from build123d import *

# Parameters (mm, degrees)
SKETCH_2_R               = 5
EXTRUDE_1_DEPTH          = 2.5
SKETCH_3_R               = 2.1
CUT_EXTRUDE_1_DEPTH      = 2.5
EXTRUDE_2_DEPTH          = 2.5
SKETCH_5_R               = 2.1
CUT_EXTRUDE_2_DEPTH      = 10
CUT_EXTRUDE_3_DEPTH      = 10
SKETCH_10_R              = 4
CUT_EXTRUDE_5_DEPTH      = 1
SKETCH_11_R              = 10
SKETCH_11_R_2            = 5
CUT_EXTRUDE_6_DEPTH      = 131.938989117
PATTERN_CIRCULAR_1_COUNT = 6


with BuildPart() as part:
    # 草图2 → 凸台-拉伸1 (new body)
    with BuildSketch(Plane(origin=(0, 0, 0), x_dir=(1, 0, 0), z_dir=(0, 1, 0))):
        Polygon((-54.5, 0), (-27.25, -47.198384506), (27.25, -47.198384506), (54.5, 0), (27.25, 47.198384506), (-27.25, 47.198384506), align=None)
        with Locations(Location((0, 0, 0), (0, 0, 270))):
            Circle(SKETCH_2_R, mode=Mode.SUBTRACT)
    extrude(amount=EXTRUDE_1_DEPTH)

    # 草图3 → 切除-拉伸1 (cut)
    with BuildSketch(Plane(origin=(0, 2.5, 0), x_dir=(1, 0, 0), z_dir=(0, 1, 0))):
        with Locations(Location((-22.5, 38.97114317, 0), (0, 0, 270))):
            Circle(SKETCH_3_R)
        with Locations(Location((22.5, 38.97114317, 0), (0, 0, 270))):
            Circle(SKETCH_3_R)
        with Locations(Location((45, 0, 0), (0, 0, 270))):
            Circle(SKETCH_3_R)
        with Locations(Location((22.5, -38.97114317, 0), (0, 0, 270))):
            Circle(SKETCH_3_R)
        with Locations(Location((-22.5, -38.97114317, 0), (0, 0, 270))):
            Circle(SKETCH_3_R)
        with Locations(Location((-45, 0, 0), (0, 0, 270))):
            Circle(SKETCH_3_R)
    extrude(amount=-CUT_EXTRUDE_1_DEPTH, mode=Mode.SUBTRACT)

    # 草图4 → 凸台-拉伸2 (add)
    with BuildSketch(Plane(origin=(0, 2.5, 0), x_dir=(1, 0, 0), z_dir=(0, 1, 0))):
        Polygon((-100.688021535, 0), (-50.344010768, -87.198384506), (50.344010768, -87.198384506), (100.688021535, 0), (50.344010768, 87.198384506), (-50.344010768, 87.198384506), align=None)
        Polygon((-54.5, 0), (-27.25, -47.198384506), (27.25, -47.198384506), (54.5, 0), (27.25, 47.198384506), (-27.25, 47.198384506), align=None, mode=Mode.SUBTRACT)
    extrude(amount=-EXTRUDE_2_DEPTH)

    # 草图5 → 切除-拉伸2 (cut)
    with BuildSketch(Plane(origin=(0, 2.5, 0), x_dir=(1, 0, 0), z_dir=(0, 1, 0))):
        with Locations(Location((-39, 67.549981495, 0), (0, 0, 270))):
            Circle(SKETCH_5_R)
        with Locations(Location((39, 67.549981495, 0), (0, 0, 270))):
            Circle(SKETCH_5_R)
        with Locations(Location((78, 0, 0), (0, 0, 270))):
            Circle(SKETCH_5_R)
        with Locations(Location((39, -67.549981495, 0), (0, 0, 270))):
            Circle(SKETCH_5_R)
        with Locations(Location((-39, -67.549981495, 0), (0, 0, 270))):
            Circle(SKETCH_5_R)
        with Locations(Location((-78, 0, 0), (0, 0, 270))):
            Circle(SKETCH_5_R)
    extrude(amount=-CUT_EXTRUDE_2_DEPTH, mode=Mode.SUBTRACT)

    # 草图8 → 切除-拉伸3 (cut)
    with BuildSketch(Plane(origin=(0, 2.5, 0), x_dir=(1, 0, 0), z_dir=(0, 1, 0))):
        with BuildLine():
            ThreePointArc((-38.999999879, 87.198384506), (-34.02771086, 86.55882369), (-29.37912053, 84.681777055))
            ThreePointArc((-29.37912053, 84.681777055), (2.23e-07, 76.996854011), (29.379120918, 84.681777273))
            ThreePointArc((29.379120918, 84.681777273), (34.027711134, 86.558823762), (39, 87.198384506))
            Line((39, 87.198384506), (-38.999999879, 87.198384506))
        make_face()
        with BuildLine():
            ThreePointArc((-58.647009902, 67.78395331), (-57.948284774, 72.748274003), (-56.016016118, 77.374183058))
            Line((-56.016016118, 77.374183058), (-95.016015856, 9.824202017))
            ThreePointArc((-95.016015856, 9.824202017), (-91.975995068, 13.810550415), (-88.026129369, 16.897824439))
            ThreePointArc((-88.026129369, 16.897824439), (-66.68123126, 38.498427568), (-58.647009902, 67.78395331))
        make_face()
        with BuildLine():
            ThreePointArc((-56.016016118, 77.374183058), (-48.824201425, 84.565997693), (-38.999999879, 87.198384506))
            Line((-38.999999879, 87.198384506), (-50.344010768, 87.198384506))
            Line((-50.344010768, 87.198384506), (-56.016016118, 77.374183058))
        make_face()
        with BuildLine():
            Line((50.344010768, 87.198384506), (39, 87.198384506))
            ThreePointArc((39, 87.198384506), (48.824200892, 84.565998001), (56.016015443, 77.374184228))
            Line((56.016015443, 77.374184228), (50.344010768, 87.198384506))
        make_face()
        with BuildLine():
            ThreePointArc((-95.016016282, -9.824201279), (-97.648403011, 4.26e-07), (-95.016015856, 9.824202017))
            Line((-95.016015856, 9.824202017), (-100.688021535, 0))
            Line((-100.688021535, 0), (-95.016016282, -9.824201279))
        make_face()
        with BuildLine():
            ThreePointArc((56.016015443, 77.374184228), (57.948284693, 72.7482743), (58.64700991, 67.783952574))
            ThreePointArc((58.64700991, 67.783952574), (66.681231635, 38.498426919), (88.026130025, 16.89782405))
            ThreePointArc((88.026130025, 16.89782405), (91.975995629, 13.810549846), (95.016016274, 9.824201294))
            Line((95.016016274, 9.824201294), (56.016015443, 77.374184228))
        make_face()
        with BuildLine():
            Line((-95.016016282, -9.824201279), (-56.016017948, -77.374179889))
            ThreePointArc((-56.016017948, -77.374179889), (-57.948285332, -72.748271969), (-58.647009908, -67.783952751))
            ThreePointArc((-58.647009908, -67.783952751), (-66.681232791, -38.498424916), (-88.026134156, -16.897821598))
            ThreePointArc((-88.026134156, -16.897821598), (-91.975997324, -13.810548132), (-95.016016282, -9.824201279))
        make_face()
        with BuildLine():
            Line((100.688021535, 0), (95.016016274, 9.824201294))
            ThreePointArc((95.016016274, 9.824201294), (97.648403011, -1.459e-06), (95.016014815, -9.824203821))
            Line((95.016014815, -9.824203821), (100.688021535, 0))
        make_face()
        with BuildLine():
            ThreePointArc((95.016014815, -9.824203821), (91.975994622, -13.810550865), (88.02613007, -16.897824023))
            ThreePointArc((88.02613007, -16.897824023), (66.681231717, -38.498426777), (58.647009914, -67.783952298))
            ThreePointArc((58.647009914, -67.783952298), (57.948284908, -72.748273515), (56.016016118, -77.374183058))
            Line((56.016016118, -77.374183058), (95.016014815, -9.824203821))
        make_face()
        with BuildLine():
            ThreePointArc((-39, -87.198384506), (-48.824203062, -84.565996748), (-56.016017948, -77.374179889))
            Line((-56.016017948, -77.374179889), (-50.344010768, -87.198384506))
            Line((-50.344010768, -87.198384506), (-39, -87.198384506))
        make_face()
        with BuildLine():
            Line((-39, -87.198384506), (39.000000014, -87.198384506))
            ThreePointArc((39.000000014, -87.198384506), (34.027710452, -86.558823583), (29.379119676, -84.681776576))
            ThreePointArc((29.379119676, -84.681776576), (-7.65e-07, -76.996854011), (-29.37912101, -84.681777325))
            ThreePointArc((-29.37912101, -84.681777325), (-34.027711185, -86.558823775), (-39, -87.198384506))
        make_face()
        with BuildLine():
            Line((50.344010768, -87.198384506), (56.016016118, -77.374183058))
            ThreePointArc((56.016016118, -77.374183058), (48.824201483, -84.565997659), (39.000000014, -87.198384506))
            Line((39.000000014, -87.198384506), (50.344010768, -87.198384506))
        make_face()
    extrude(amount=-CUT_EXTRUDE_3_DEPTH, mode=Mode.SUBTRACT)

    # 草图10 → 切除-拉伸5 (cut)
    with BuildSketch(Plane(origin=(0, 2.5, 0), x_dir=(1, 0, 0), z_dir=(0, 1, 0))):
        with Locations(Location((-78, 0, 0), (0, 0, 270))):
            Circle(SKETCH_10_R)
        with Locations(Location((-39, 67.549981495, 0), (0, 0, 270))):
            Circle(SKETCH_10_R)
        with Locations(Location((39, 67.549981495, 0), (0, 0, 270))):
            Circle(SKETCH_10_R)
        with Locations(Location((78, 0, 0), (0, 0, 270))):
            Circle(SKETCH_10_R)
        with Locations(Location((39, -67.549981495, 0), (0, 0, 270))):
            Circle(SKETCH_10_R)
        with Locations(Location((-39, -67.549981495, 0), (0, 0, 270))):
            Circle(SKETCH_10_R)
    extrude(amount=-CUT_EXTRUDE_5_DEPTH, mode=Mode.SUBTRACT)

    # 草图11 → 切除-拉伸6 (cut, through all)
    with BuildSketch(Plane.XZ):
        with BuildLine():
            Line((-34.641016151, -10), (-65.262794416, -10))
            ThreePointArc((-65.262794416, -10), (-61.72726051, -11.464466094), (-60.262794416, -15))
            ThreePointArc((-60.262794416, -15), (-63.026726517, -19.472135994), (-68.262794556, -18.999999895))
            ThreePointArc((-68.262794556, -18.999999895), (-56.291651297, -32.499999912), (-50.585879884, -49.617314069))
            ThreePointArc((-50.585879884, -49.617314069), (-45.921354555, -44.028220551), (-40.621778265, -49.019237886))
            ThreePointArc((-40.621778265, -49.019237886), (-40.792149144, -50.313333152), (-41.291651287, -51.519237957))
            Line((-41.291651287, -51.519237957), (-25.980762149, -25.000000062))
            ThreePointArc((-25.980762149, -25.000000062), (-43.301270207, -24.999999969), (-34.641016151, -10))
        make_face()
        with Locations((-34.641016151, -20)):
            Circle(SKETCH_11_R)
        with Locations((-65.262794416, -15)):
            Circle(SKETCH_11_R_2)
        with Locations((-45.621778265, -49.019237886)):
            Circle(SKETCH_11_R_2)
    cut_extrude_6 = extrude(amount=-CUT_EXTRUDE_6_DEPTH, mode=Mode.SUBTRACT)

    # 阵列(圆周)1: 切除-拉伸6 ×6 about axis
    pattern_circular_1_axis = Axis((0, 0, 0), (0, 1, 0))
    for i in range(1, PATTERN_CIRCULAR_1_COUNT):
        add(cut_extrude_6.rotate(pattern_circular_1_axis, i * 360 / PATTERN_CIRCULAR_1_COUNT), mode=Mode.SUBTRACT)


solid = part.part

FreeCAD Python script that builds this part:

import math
import FreeCAD as App
import Part
import Sketcher
from FreeCAD import Vector
Q = App.Units.Quantity

doc = App.newDocument("Part")
body = doc.addObject("PartDesign::Body", "Body")

# Sketch on XZ plane
sketch1 = doc.addObject("Sketcher::SketchObject", "Sketch")
body.addObject(sketch1)
sketch1.AttachmentSupport = (doc.XZ_Plane, [""])
sketch1.MapMode = "FlatFace"
sketch1.addGeometry(Part.LineSegment(Vector(-54, 0, 0), Vector(-27, 47, 0)), False)
sketch1.addGeometry(Part.LineSegment(Vector(-27, 47, 0), Vector(27, 47, 0)), False)
sketch1.addGeometry(Part.LineSegment(Vector(27, 47, 0), Vector(54, 0, 0)), False)
sketch1.addGeometry(Part.LineSegment(Vector(54, 0, 0), Vector(27, -47, 0)), False)
sketch1.addGeometry(Part.LineSegment(Vector(27, -47, 0), Vector(-27, -47, 0)), False)
sketch1.addGeometry(Part.LineSegment(Vector(-27, -47, 0), Vector(-54, 0, 0)), False)
sketch1.addGeometry(Part.Circle(Vector(0, 0, 0), Vector(0, 0, 1), 5), False)
sketch1.addConstraint(Sketcher.Constraint("Coincident", 0, 2, 1, 1))
sketch1.addConstraint(Sketcher.Constraint("Coincident", 1, 2, 2, 1))
sketch1.addConstraint(Sketcher.Constraint("Coincident", 2, 2, 3, 1))
sketch1.addConstraint(Sketcher.Constraint("Coincident", 3, 2, 4, 1))
sketch1.addConstraint(Sketcher.Constraint("Coincident", 4, 2, 5, 1))
sketch1.addConstraint(Sketcher.Constraint("Coincident", 5, 2, 0, 1))
sketch1.addConstraint(Sketcher.Constraint("Horizontal", 1))
sketch1.addConstraint(Sketcher.Constraint("Horizontal", 4))
sketch1.addConstraint(Sketcher.Constraint("Coincident", 6, 3, -1, 1))
sketch1.addConstraint(Sketcher.Constraint("Symmetric", 0, 2, 3, 2, -1, 1))
sketch1.addConstraint(Sketcher.Constraint("Symmetric", 2, 2, 5, 2, -1, 1))
sketch1.addConstraint(Sketcher.Constraint("PointOnObject", 2, 2, -1))
sketch1.addConstraint(Sketcher.Constraint("Parallel", 2, 5))
sketch1.addConstraint(Sketcher.Constraint("Vertical", 1, 2, 3, 2))
sketch1.addConstraint(Sketcher.Constraint("Diameter", 6, 10.0))
sketch1.addConstraint(Sketcher.Constraint("Angle", 0, Q("60 deg")))
sketch1.addConstraint(Sketcher.Constraint("DistanceX", 1, 1, 1, 2, 54.5))
sketch1.addConstraint(Sketcher.Constraint("Distance", 0, 54.5))
pad1 = doc.addObject("PartDesign::Pad", "Pad")
body.addObject(pad1)
pad1.Profile = sketch1
pad1.Length = 2.5
pad1.Reversed = True

# Sketch on XZ plane
sketch2 = doc.addObject("Sketcher::SketchObject", "Sketch001")
body.addObject(sketch2)
sketch2.AttachmentSupport = (doc.XZ_Plane, [""])
sketch2.MapMode = "FlatFace"
sketch2.AttachmentOffset = App.Placement(Vector(0, 0, -2.5), App.Rotation())
sketch2.addGeometry(Part.Circle(Vector(-22.5, -39, 0), Vector(0, 0, 1), 2.1), False)
sketch2.addGeometry(Part.Circle(Vector(22.5, -39, 0), Vector(0, 0, 1), 2.1), False)
sketch2.addGeometry(Part.Circle(Vector(45, 0, 0), Vector(0, 0, 1), 2.1), False)
sketch2.addGeometry(Part.Circle(Vector(22.5, 39, 0), Vector(0, 0, 1), 2.1), False)
sketch2.addGeometry(Part.Circle(Vector(-22.5, 39, 0), Vector(0, 0, 1), 2.1), False)
sketch2.addGeometry(Part.Circle(Vector(-45, 0, 0), Vector(0, 0, 1), 2.1), False)
sketch2.addConstraint(Sketcher.Constraint("Equal", 0, 1))
sketch2.addConstraint(Sketcher.Constraint("Equal", 1, 2))
sketch2.addConstraint(Sketcher.Constraint("Equal", 2, 3))
sketch2.addConstraint(Sketcher.Constraint("Equal", 3, 4))
sketch2.addConstraint(Sketcher.Constraint("Equal", 4, 5))
sketch2.addConstraint(Sketcher.Constraint("Symmetric", 0, 3, 3, 3, -1, 1))
sketch2.addConstraint(Sketcher.Constraint("Symmetric", 1, 3, 4, 3, -1, 1))
sketch2.addConstraint(Sketcher.Constraint("Symmetric", 2, 3, 5, 3, -1, 1))
sketch2.addConstraint(Sketcher.Constraint("Symmetric", 0, 3, 1, 3, -2))
sketch2.addConstraint(Sketcher.Constraint("PointOnObject", 2, 3, -1))
sketch2.addConstraint(Sketcher.Constraint("Diameter", 0, 4.2))
sketch2.addConstraint(Sketcher.Constraint("DistanceX", -1, 1, 2, 3, 45.0))
sketch2.addConstraint(Sketcher.Constraint("DistanceX", 0, 3, 1, 3, 45.0))
sketch2.addConstraint(Sketcher.Constraint("DistanceY", 0, 3, -1, 1, 38.971143))
pocket1 = doc.addObject("PartDesign::Pocket", "Pocket")
body.addObject(pocket1)
pocket1.Profile = sketch2
pocket1.Length = 2.5
pocket1.Reversed = True

# Sketch on XZ plane
sketch3 = doc.addObject("Sketcher::SketchObject", "Sketch002")
body.addObject(sketch3)
sketch3.AttachmentSupport = (doc.XZ_Plane, [""])
sketch3.MapMode = "FlatFace"
sketch3.AttachmentOffset = App.Placement(Vector(0, 0, -2.5), App.Rotation())
sketch3.addGeometry(Part.LineSegment(Vector(-101, 0, 0), Vector(-50, 87, 0)), False)
sketch3.addGeometry(Part.LineSegment(Vector(-50, 87, 0), Vector(50, 87, 0)), False)
sketch3.addGeometry(Part.LineSegment(Vector(50, 87, 0), Vector(101, 0, 0)), False)
sketch3.addGeometry(Part.LineSegment(Vector(101, 0, 0), Vector(50, -87, 0)), False)
sketch3.addGeometry(Part.LineSegment(Vector(50, -87, 0), Vector(-50, -87, 0)), False)
sketch3.addGeometry(Part.LineSegment(Vector(-50, -87, 0), Vector(-101, 0, 0)), False)
sketch3.addGeometry(Part.LineSegment(Vector(-27, 47, 0), Vector(-54, 0, 0)), False)
sketch3.addGeometry(Part.LineSegment(Vector(-54, 0, 0), Vector(-27, -47, 0)), False)
sketch3.addGeometry(Part.LineSegment(Vector(-27, -47, 0), Vector(27, -47, 0)), False)
sketch3.addGeometry(Part.LineSegment(Vector(27, -47, 0), Vector(54, 0, 0)), False)
sketch3.addGeometry(Part.LineSegment(Vector(54, 0, 0), Vector(27, 47, 0)), False)
sketch3.addGeometry(Part.LineSegment(Vector(27, 47, 0), Vector(-27, 47, 0)), False)
sketch3.addConstraint(Sketcher.Constraint("Coincident", 0, 2, 1, 1))
sketch3.addConstraint(Sketcher.Constraint("Coincident", 1, 2, 2, 1))
sketch3.addConstraint(Sketcher.Constraint("Coincident", 2, 2, 3, 1))
sketch3.addConstraint(Sketcher.Constraint("Coincident", 3, 2, 4, 1))
sketch3.addConstraint(Sketcher.Constraint("Coincident", 4, 2, 5, 1))
sketch3.addConstraint(Sketcher.Constraint("Coincident", 5, 2, 0, 1))
sketch3.addConstraint(Sketcher.Constraint("Coincident", 6, 2, 7, 1))
sketch3.addConstraint(Sketcher.Constraint("Coincident", 7, 2, 8, 1))
sketch3.addConstraint(Sketcher.Constraint("Coincident", 8, 2, 9, 1))
sketch3.addConstraint(Sketcher.Constraint("Coincident", 9, 2, 10, 1))
sketch3.addConstraint(Sketcher.Constraint("Coincident", 10, 2, 11, 1))
sketch3.addConstraint(Sketcher.Constraint("Coincident", 11, 2, 6, 1))
sketch3.addConstraint(Sketcher.Constraint("Horizontal", 1))
sketch3.addConstraint(Sketcher.Constraint("Horizontal", 4))
sketch3.addConstraint(Sketcher.Constraint("Horizontal", 8))
sketch3.addConstraint(Sketcher.Constraint("Horizontal", 11))
sketch3.addConstraint(Sketcher.Constraint("Symmetric", 0, 2, 3, 2, -1, 1))
sketch3.addConstraint(Sketcher.Constraint("Symmetric", 2, 2, 5, 2, -1, 1))
sketch3.addConstraint(Sketcher.Constraint("Symmetric", 6, 2, 9, 2, -1, 1))
sketch3.addConstraint(Sketcher.Constraint("Symmetric", 7, 2, 10, 2, -1, 1))
sketch3.addConstraint(Sketcher.Constraint("PointOnObject", 2, 2, -1))
sketch3.addConstraint(Sketcher.Constraint("PointOnObject", 6, 2, -1))
sketch3.addConstraint(Sketcher.Constraint("Parallel", 2, 5))
sketch3.addConstraint(Sketcher.Constraint("Parallel", 3, 6))
sketch3.addConstraint(Sketcher.Constraint("Parallel", 5, 7))
sketch3.addConstraint(Sketcher.Constraint("Parallel", 6, 9))
sketch3.addConstraint(Sketcher.Constraint("Vertical", 1, 2, 3, 2))
sketch3.addConstraint(Sketcher.Constraint("Angle", 0, Q("60 deg")))
sketch3.addConstraint(Sketcher.Constraint("DistanceX", 8, 1, 8, 2, 54.5))
sketch3.addConstraint(Sketcher.Constraint("DistanceY", 4, 2, 7, 2, 40.0))
sketch3.addConstraint(Sketcher.Constraint("Distance", 6, 54.5))
sketch3.addConstraint(Sketcher.Constraint("DistanceX", 1, 1, 1, 2, 100.688022))
pad2 = doc.addObject("PartDesign::Pad", "Pad001")
body.addObject(pad2)
pad2.Profile = sketch3
pad2.Length = 2.5

# Sketch on XZ plane
sketch4 = doc.addObject("Sketcher::SketchObject", "Sketch003")
body.addObject(sketch4)
sketch4.AttachmentSupport = (doc.XZ_Plane, [""])
sketch4.MapMode = "FlatFace"
sketch4.AttachmentOffset = App.Placement(Vector(0, 0, -2.5), App.Rotation())
sketch4.addGeometry(Part.Circle(Vector(-39, -67.5, 0), Vector(0, 0, 1), 2.1), False)
sketch4.addGeometry(Part.Circle(Vector(39, -67.5, 0), Vector(0, 0, 1), 2.1), False)
sketch4.addGeometry(Part.Circle(Vector(78, 0, 0), Vector(0, 0, 1), 2.1), False)
sketch4.addGeometry(Part.Circle(Vector(39, 67.5, 0), Vector(0, 0, 1), 2.1), False)
sketch4.addGeometry(Part.Circle(Vector(-39, 67.5, 0), Vector(0, 0, 1), 2.1), False)
sketch4.addGeometry(Part.Circle(Vector(-78, 0, 0), Vector(0, 0, 1), 2.1), False)
sketch4.addConstraint(Sketcher.Constraint("Equal", 0, 1))
sketch4.addConstraint(Sketcher.Constraint("Equal", 1, 2))
sketch4.addConstraint(Sketcher.Constraint("Equal", 2, 3))
sketch4.addConstraint(Sketcher.Constraint("Equal", 3, 4))
sketch4.addConstraint(Sketcher.Constraint("Equal", 4, 5))
sketch4.addConstraint(Sketcher.Constraint("Symmetric", 0, 3, 3, 3, -1, 1))
sketch4.addConstraint(Sketcher.Constraint("Symmetric", 1, 3, 4, 3, -1, 1))
sketch4.addConstraint(Sketcher.Constraint("Symmetric", 2, 3, 5, 3, -1, 1))
sketch4.addConstraint(Sketcher.Constraint("Symmetric", 0, 3, 1, 3, -2))
sketch4.addConstraint(Sketcher.Constraint("PointOnObject", 2, 3, -1))
sketch4.addConstraint(Sketcher.Constraint("Diameter", 0, 4.2))
sketch4.addConstraint(Sketcher.Constraint("DistanceX", 0, 3, -1, 1, 39.0))
sketch4.addConstraint(Sketcher.Constraint("DistanceX", -1, 1, 2, 3, 78.0))
sketch4.addConstraint(Sketcher.Constraint("DistanceY", 0, 3, -1, 1, 67.549981))
pocket2 = doc.addObject("PartDesign::Pocket", "Pocket001")
body.addObject(pocket2)
pocket2.Profile = sketch4
pocket2.Length = 10
pocket2.Reversed = True

# Sketch on XZ plane
sketch5 = doc.addObject("Sketcher::SketchObject", "Sketch004")
body.addObject(sketch5)
sketch5.AttachmentSupport = (doc.XZ_Plane, [""])
sketch5.MapMode = "FlatFace"
sketch5.AttachmentOffset = App.Placement(Vector(0, 0, -2.5), App.Rotation())
sketch5.addGeometry(Part.ArcOfCircle(Part.Circle(Vector(-39, -68, 0), Vector(0, 0, 1), 20), math.radians(-90), math.radians(-61)), False)
sketch5.addGeometry(Part.ArcOfCircle(Part.Circle(Vector(0, -137, 0), Vector(0, 0, 1), 60), math.radians(61), math.radians(119)), False)
sketch5.addGeometry(Part.ArcOfCircle(Part.Circle(Vector(39, -68, 0), Vector(0, 0, 1), 20), math.radians(-119), math.radians(-90)), False)
sketch5.addGeometry(Part.LineSegment(Vector(39, -87, 0), Vector(-39, -87, 0)), False)
sketch5.addGeometry(Part.ArcOfCircle(Part.Circle(Vector(-39, -68, 0), Vector(0, 0, 1), 20), math.radians(-179), math.radians(-150)), False)
sketch5.addGeometry(Part.LineSegment(Vector(-56, -77, 0), Vector(-95, -10, 0)), False)
sketch5.addGeometry(Part.ArcOfCircle(Part.Circle(Vector(-78, 0, 0), Vector(0, 0, 1), 20), math.radians(-150), math.radians(-121)), False)
sketch5.addGeometry(Part.ArcOfCircle(Part.Circle(Vector(-119, -68, 0), Vector(0, 0, 1), 60), math.radians(1), math.radians(59)), False)
sketch5.addGeometry(Part.ArcOfCircle(Part.Circle(Vector(-39, -68, 0), Vector(0, 0, 1), 20), math.radians(-150), math.radians(-90)), False)
sketch5.addGeometry(Part.LineSegment(Vector(-39, -87, 0), Vector(-50, -87, 0)), False)
sketch5.addGeometry(Part.LineSegment(Vector(-50, -87, 0), Vector(-56, -77, 0)), False)
sketch5.addGeometry(Part.LineSegment(Vector(50, -87, 0), Vector(39, -87, 0)), False)
sketch5.addGeometry(Part.ArcOfCircle(Part.Circle(Vector(39, -68, 0), Vector(0, 0, 1), 20), math.radians(-90), math.radians(-30)), False)
sketch5.addGeometry(Part.LineSegment(Vector(56, -77, 0), Vector(50, -87, 0)), False)
sketch5.addGeometry(Part.ArcOfCircle(Part.Circle(Vector(-78, 0, 0), Vector(0, 0, 1), 20), math.radians(150), math.radians(210)), False)
sketch5.addGeometry(Part.LineSegment(Vector(-95, -10, 0), Vector(-101, 0, 0)), False)
sketch5.addGeometry(Part.LineSegment(Vector(-101, 0, 0), Vector(-95, 10, 0)), False)
sketch5.addGeometry(Part.ArcOfCircle(Part.Circle(Vector(39, -68, 0), Vector(0, 0, 1), 20), math.radians(-30), math.radians(-1)), False)
sketch5.addGeometry(Part.ArcOfCircle(Part.Circle(Vector(119, -68, 0), Vector(0, 0, 1), 60), math.radians(121), math.radians(179)), False)
sketch5.addGeometry(Part.ArcOfCircle(Part.Circle(Vector(78, 0, 0), Vector(0, 0, 1), 20), math.radians(-59), math.radians(-30)), False)
sketch5.addGeometry(Part.LineSegment(Vector(95, -10, 0), Vector(56, -77, 0)), False)
sketch5.addGeometry(Part.LineSegment(Vector(-95, 10, 0), Vector(-56, 77, 0)), False)
sketch5.addGeometry(Part.ArcOfCircle(Part.Circle(Vector(-39, 68, 0), Vector(0, 0, 1), 20), math.radians(150), math.radians(179)), False)
sketch5.addGeometry(Part.ArcOfCircle(Part.Circle(Vector(-119, 68, 0), Vector(0, 0, 1), 60), math.radians(-59), math.radians(-1)), False)
sketch5.addGeometry(Part.ArcOfCircle(Part.Circle(Vector(-78, 0, 0), Vector(0, 0, 1), 20), math.radians(121), math.radians(150)), False)
sketch5.addGeometry(Part.LineSegment(Vector(101, 0, 0), Vector(95, -10, 0)), False)
sketch5.addGeometry(Part.ArcOfCircle(Part.Circle(Vector(78, 0, 0), Vector(0, 0, 1), 20), math.radians(-30), math.radians(30)), False)
sketch5.addGeometry(Part.LineSegment(Vector(95, 10, 0), Vector(101, 0, 0)), False)
sketch5.addGeometry(Part.ArcOfCircle(Part.Circle(Vector(78, 0, 0), Vector(0, 0, 1), 20), math.radians(30), math.radians(59)), False)
sketch5.addGeometry(Part.ArcOfCircle(Part.Circle(Vector(119, 68, 0), Vector(0, 0, 1), 60), math.radians(-179), math.radians(-121)), False)
sketch5.addGeometry(Part.ArcOfCircle(Part.Circle(Vector(39, 68, 0), Vector(0, 0, 1), 20), math.radians(1), math.radians(30)), False)
sketch5.addGeometry(Part.LineSegment(Vector(56, 77, 0), Vector(95, 10, 0)), False)
sketch5.addGeometry(Part.ArcOfCircle(Part.Circle(Vector(-39, 68, 0), Vector(0, 0, 1), 20), math.radians(90), math.radians(150)), False)
sketch5.addGeometry(Part.LineSegment(Vector(-56, 77, 0), Vector(-50, 87, 0)), False)
sketch5.addGeometry(Part.LineSegment(Vector(-50, 87, 0), Vector(-39, 87, 0)), False)
sketch5.addGeometry(Part.LineSegment(Vector(-39, 87, 0), Vector(39, 87, 0)), False)
sketch5.addGeometry(Part.ArcOfCircle(Part.Circle(Vector(39, 68, 0), Vector(0, 0, 1), 20), math.radians(90), math.radians(119)), False)
sketch5.addGeometry(Part.ArcOfCircle(Part.Circle(Vector(0, 137, 0), Vector(0, 0, 1), 60), math.radians(-119), math.radians(-61)), False)
sketch5.addGeometry(Part.ArcOfCircle(Part.Circle(Vector(-39, 68, 0), Vector(0, 0, 1), 20), math.radians(61), math.radians(90)), False)
sketch5.addGeometry(Part.LineSegment(Vector(50, 87, 0), Vector(56, 77, 0)), False)
sketch5.addGeometry(Part.ArcOfCircle(Part.Circle(Vector(39, 68, 0), Vector(0, 0, 1), 20), math.radians(30), math.radians(90)), False)
sketch5.addGeometry(Part.LineSegment(Vector(39, 87, 0), Vector(50, 87, 0)), False)
sketch5.addConstraint(Sketcher.Constraint("Tangent", 0, 2, 1, 2))
sketch5.addConstraint(Sketcher.Constraint("Tangent", 1, 1, 2, 1))
sketch5.addConstraint(Sketcher.Constraint("Tangent", 2, 2, 3, 1))
sketch5.addConstraint(Sketcher.Constraint("Tangent", 3, 2, 0, 1))
sketch5.addConstraint(Sketcher.Constraint("Tangent", 4, 2, 5, 1))
sketch5.addConstraint(Sketcher.Constraint("Tangent", 5, 2, 6, 1))
sketch5.addConstraint(Sketcher.Constraint("Tangent", 6, 2, 7, 2))
sketch5.addConstraint(Sketcher.Constraint("Tangent", 7, 1, 4, 1))
sketch5.addConstraint(Sketcher.Constraint("Tangent", 8, 2, 9, 1))
sketch5.addConstraint(Sketcher.Constraint("Coincident", 9, 2, 10, 1))
sketch5.addConstraint(Sketcher.Constraint("Tangent", 10, 2, 8, 1))
sketch5.addConstraint(Sketcher.Constraint("Tangent", 11, 2, 12, 1))
sketch5.addConstraint(Sketcher.Constraint("Tangent", 12, 2, 13, 1))
sketch5.addConstraint(Sketcher.Constraint("Coincident", 13, 2, 11, 1))
sketch5.addConstraint(Sketcher.Constraint("Tangent", 14, 2, 15, 1))
sketch5.addConstraint(Sketcher.Constraint("Coincident", 15, 2, 16, 1))
sketch5.addConstraint(Sketcher.Constraint("Tangent", 16, 2, 14, 1))
sketch5.addConstraint(Sketcher.Constraint("Tangent", 17, 2, 18, 2))
sketch5.addConstraint(Sketcher.Constraint("Tangent", 18, 1, 19, 1))
sketch5.addConstraint(Sketcher.Constraint("Tangent", 19, 2, 20, 1))
sketch5.addConstraint(Sketcher.Constraint("Tangent", 20, 2, 17, 1))
sketch5.addConstraint(Sketcher.Constraint("Tangent", 21, 2, 22, 1))
sketch5.addConstraint(Sketcher.Constraint("Tangent", 22, 2, 23, 2))
sketch5.addConstraint(Sketcher.Constraint("Tangent", 23, 1, 24, 1))
sketch5.addConstraint(Sketcher.Constraint("Tangent", 24, 2, 21, 1))
sketch5.addConstraint(Sketcher.Constraint("Tangent", 25, 2, 26, 1))
sketch5.addConstraint(Sketcher.Constraint("Tangent", 26, 2, 27, 1))
sketch5.addConstraint(Sketcher.Constraint("Coincident", 27, 2, 25, 1))
sketch5.addConstraint(Sketcher.Constraint("Tangent", 28, 2, 29, 2))
sketch5.addConstraint(Sketcher.Constraint("Tangent", 29, 1, 30, 1))
sketch5.addConstraint(Sketcher.Constraint("Tangent", 30, 2, 31, 1))
sketch5.addConstraint(Sketcher.Constraint("Tangent", 31, 2, 28, 1))
sketch5.addConstraint(Sketcher.Constraint("Tangent", 32, 2, 33, 1))
sketch5.addConstraint(Sketcher.Constraint("Coincident", 33, 2, 34, 1))
sketch5.addConstraint(Sketcher.Constraint("Tangent", 34, 2, 32, 1))
sketch5.addConstraint(Sketcher.Constraint("Tangent", 35, 2, 36, 1))
sketch5.addConstraint(Sketcher.Constraint("Tangent", 36, 2, 37, 2))
sketch5.addConstraint(Sketcher.Constraint("Tangent", 37, 1, 38, 1))
sketch5.addConstraint(Sketcher.Constraint("Tangent", 38, 2, 35, 1))
sketch5.addConstraint(Sketcher.Constraint("Tangent", 39, 2, 40, 1))
sketch5.addConstraint(Sketcher.Constraint("Tangent", 40, 2, 41, 1))
sketch5.addConstraint(Sketcher.Constraint("Coincident", 41, 2, 39, 1))
sketch5.addConstraint(Sketcher.Constraint("Horizontal", 3))
sketch5.addConstraint(Sketcher.Constraint("Horizontal", 9))
sketch5.addConstraint(Sketcher.Constraint("Horizontal", 11))
sketch5.addConstraint(Sketcher.Constraint("Horizontal", 34))
sketch5.addConstraint(Sketcher.Constraint("Horizontal", 35))
sketch5.addConstraint(Sketcher.Constraint("Horizontal", 41))
sketch5.addConstraint(Sketcher.Constraint("Coincident", 4, 3, 0, 3))
sketch5.addConstraint(Sketcher.Constraint("Coincident", 8, 3, 0, 3))
sketch5.addConstraint(Sketcher.Constraint("Coincident", 12, 3, 2, 3))
sketch5.addConstraint(Sketcher.Constraint("Coincident", 14, 3, 6, 3))
sketch5.addConstraint(Sketcher.Constraint("Coincident", 17, 3, 2, 3))
sketch5.addConstraint(Sketcher.Constraint("Coincident", 24, 3, 6, 3))
sketch5.addConstraint(Sketcher.Constraint("Coincident", 26, 3, 19, 3))
sketch5.addConstraint(Sketcher.Constraint("Coincident", 28, 3, 19, 3))
sketch5.addConstraint(Sketcher.Constraint("Coincident", 32, 3, 22, 3))
sketch5.addConstraint(Sketcher.Constraint("Coincident", 36, 3, 30, 3))
sketch5.addConstraint(Sketcher.Constraint("Coincident", 38, 3, 22, 3))
sketch5.addConstraint(Sketcher.Constraint("Coincident", 40, 3, 30, 3))
sketch5.addConstraint(Sketcher.Constraint("Coincident", 10, 2, 4, 2))
sketch5.addConstraint(Sketcher.Constraint("Coincident", 14, 2, 5, 2))
sketch5.addConstraint(Sketcher.Constraint("Coincident", 20, 2, 12, 2))
sketch5.addConstraint(Sketcher.Constraint("Coincident", 24, 2, 16, 2))
sketch5.addConstraint(Sketcher.Constraint("Coincident", 25, 2, 19, 2))
sketch5.addConstraint(Sketcher.Constraint("Coincident", 31, 2, 26, 2))
sketch5.addConstraint(Sketcher.Constraint("Coincident", 32, 2, 21, 2))
sketch5.addConstraint(Sketcher.Constraint("Coincident", 39, 2, 30, 2))
sketch5.addConstraint(Sketcher.Constraint("Equal", 0, 2))
sketch5.addConstraint(Sketcher.Constraint("Equal", 2, 4))
sketch5.addConstraint(Sketcher.Constraint("Equal", 4, 6))
sketch5.addConstraint(Sketcher.Constraint("Equal", 1, 7))
sketch5.addConstraint(Sketcher.Constraint("Equal", 8, 12))
sketch5.addConstraint(Sketcher.Constraint("Equal", 7, 18))
sketch5.addConstraint(Sketcher.Constraint("Equal", 17, 19))
sketch5.addConstraint(Sketcher.Constraint("Equal", 19, 22))
sketch5.addConstraint(Sketcher.Constraint("Equal", 18, 23))
sketch5.addConstraint(Sketcher.Constraint("Equal", 23, 29))
sketch5.addConstraint(Sketcher.Constraint("Equal", 28, 30))
sketch5.addConstraint(Sketcher.Constraint("Equal", 32, 36))
sketch5.addConstraint(Sketcher.Constraint("Equal", 29, 37))
sketch5.addConstraint(Sketcher.Constraint("Equal", 36, 38))
sketch5.addConstraint(Sketcher.Constraint("Symmetric", 6, 3, 19, 3, -1, 1))
sketch5.addConstraint(Sketcher.Constraint("Symmetric", 2, 3, 22, 3, -1, 1))
sketch5.addConstraint(Sketcher.Constraint("Symmetric", 7, 3, 18, 3, -2))
sketch5.addConstraint(Sketcher.Constraint("PointOnObject", 37, 3, -2))
sketch5.addConstraint(Sketcher.Constraint("Equal", 10, 15))
sketch5.addConstraint(Sketcher.Constraint("Radius", 1, 60.0))
sketch5.addConstraint(Sketcher.Constraint("DistanceX", 3, 2, 3, 1, 78.0))
sketch5.addConstraint(Sketcher.Constraint("Distance", 5, 77.999999))
sketch5.addConstraint(Sketcher.Constraint("Radius", 0, 19.648403))
pocket3 = doc.addObject("PartDesign::Pocket", "Pocket002")
body.addObject(pocket3)
pocket3.Profile = sketch5
pocket3.Length = 10
pocket3.Reversed = True

# Sketch on XZ plane
sketch6 = doc.addObject("Sketcher::SketchObject", "Sketch005")
body.addObject(sketch6)
sketch6.AttachmentSupport = (doc.XZ_Plane, [""])
sketch6.MapMode = "FlatFace"
sketch6.AttachmentOffset = App.Placement(Vector(0, 0, -2.5), App.Rotation())
sketch6.addGeometry(Part.Circle(Vector(-78, 0, 0), Vector(0, 0, 1), 4), False)
sketch6.addGeometry(Part.Circle(Vector(-39, -67.5, 0), Vector(0, 0, 1), 4), False)
sketch6.addGeometry(Part.Circle(Vector(39, -67.5, 0), Vector(0, 0, 1), 4), False)
sketch6.addGeometry(Part.Circle(Vector(78, 0, 0), Vector(0, 0, 1), 4), False)
sketch6.addGeometry(Part.Circle(Vector(39, 67.5, 0), Vector(0, 0, 1), 4), False)
sketch6.addGeometry(Part.Circle(Vector(-39, 67.5, 0), Vector(0, 0, 1), 4), False)
sketch6.addConstraint(Sketcher.Constraint("Equal", 0, 1))
sketch6.addConstraint(Sketcher.Constraint("Equal", 1, 2))
sketch6.addConstraint(Sketcher.Constraint("Equal", 2, 3))
sketch6.addConstraint(Sketcher.Constraint("Equal", 3, 4))
sketch6.addConstraint(Sketcher.Constraint("Equal", 4, 5))
sketch6.addConstraint(Sketcher.Constraint("Symmetric", 0, 3, 3, 3, -1, 1))
sketch6.addConstraint(Sketcher.Constraint("Symmetric", 1, 3, 4, 3, -1, 1))
sketch6.addConstraint(Sketcher.Constraint("Symmetric", 2, 3, 5, 3, -1, 1))
sketch6.addConstraint(Sketcher.Constraint("Symmetric", 1, 3, 2, 3, -2))
sketch6.addConstraint(Sketcher.Constraint("PointOnObject", 0, 3, -1))
sketch6.addConstraint(Sketcher.Constraint("Diameter", 0, 8.0))
sketch6.addConstraint(Sketcher.Constraint("DistanceX", 0, 3, -1, 1, 78.0))
sketch6.addConstraint(Sketcher.Constraint("DistanceX", 1, 3, -1, 1, 39.0))
sketch6.addConstraint(Sketcher.Constraint("DistanceY", 1, 3, -1, 1, 67.549981))
pocket4 = doc.addObject("PartDesign::Pocket", "Pocket003")
body.addObject(pocket4)
pocket4.Profile = sketch6
pocket4.Length = 1
pocket4.Reversed = True

# Sketch on XZ plane
sketch7 = doc.addObject("Sketcher::SketchObject", "Sketch006")
body.addObject(sketch7)
sketch7.AttachmentSupport = (doc.XZ_Plane, [""])
sketch7.MapMode = "FlatFace"
sketch7.addGeometry(Part.LineSegment(Vector(-35, -10, 0), Vector(-65, -10, 0)), False)
sketch7.addGeometry(Part.ArcOfCircle(Part.Circle(Vector(-65, -15, 0), Vector(0, 0, 1), 5), math.radians(90), math.radians(233)), False)
sketch7.addGeometry(Part.ArcOfCircle(Part.Circle(Vector(-95, -55, 0), Vector(0, 0, 1), 45), math.radians(7), math.radians(53)), False)
sketch7.addGeometry(Part.ArcOfCircle(Part.Circle(Vector(-46, -49, 0), Vector(0, 0, 1), 5), math.radians(-173), math.radians(-30)), False)
sketch7.addGeometry(Part.LineSegment(Vector(-41, -52, 0), Vector(-26, -25, 0)), False)
sketch7.addGeometry(Part.ArcOfCircle(Part.Circle(Vector(-35, -20, 0), Vector(0, 0, 1), 10), math.radians(-30), math.radians(90)), False)
sketch7.addConstraint(Sketcher.Constraint("Tangent", 0, 2, 1, 1))
sketch7.addConstraint(Sketcher.Constraint("Tangent", 1, 2, 2, 2))
sketch7.addConstraint(Sketcher.Constraint("Tangent", 2, 1, 3, 1))
sketch7.addConstraint(Sketcher.Constraint("Tangent", 3, 2, 4, 1))
sketch7.addConstraint(Sketcher.Constraint("Tangent", 4, 2, 5, 1))
sketch7.addConstraint(Sketcher.Constraint("Tangent", 5, 2, 0, 1))
sketch7.addConstraint(Sketcher.Constraint("Horizontal", 0))
sketch7.addConstraint(Sketcher.Constraint("Equal", 1, 3))
sketch7.addConstraint(Sketcher.Constraint("Radius", 1, 5.0))
sketch7.addConstraint(Sketcher.Constraint("Radius", 2, 45.0))
sketch7.addConstraint(Sketcher.Constraint("Radius", 5, 10.0))
sketch7.addConstraint(Sketcher.Constraint("Angle", 4, Q("60 deg")))
sketch7.addConstraint(Sketcher.Constraint("DistanceY", 1, 3, -1, 1, 15.0))
sketch7.addConstraint(Sketcher.Constraint("DistanceY", 2, 3, -1, 1, 55.0))
sketch7.addConstraint(Sketcher.Constraint("DistanceX", 0, 2, 0, 1, 30.621778))
sketch7.addConstraint(Sketcher.Constraint("DistanceX", 3, 3, -1, 1, 45.621778))
pocket5 = doc.addObject("PartDesign::Pocket", "Pocket004")
body.addObject(pocket5)
pocket5.Profile = sketch7
pocket5.Type = "ThroughAll"
doc.recompute()

polarpattern = doc.addObject("PartDesign::PolarPattern", "PolarPattern")
body.addObject(polarpattern)
polarpattern.Originals = [pocket5]
polarpattern.Axis = (doc.Y_Axis, [""])
polarpattern.Angle = 360
polarpattern.Occurrences = 6
body.Tip = polarpattern

doc.recompute()
